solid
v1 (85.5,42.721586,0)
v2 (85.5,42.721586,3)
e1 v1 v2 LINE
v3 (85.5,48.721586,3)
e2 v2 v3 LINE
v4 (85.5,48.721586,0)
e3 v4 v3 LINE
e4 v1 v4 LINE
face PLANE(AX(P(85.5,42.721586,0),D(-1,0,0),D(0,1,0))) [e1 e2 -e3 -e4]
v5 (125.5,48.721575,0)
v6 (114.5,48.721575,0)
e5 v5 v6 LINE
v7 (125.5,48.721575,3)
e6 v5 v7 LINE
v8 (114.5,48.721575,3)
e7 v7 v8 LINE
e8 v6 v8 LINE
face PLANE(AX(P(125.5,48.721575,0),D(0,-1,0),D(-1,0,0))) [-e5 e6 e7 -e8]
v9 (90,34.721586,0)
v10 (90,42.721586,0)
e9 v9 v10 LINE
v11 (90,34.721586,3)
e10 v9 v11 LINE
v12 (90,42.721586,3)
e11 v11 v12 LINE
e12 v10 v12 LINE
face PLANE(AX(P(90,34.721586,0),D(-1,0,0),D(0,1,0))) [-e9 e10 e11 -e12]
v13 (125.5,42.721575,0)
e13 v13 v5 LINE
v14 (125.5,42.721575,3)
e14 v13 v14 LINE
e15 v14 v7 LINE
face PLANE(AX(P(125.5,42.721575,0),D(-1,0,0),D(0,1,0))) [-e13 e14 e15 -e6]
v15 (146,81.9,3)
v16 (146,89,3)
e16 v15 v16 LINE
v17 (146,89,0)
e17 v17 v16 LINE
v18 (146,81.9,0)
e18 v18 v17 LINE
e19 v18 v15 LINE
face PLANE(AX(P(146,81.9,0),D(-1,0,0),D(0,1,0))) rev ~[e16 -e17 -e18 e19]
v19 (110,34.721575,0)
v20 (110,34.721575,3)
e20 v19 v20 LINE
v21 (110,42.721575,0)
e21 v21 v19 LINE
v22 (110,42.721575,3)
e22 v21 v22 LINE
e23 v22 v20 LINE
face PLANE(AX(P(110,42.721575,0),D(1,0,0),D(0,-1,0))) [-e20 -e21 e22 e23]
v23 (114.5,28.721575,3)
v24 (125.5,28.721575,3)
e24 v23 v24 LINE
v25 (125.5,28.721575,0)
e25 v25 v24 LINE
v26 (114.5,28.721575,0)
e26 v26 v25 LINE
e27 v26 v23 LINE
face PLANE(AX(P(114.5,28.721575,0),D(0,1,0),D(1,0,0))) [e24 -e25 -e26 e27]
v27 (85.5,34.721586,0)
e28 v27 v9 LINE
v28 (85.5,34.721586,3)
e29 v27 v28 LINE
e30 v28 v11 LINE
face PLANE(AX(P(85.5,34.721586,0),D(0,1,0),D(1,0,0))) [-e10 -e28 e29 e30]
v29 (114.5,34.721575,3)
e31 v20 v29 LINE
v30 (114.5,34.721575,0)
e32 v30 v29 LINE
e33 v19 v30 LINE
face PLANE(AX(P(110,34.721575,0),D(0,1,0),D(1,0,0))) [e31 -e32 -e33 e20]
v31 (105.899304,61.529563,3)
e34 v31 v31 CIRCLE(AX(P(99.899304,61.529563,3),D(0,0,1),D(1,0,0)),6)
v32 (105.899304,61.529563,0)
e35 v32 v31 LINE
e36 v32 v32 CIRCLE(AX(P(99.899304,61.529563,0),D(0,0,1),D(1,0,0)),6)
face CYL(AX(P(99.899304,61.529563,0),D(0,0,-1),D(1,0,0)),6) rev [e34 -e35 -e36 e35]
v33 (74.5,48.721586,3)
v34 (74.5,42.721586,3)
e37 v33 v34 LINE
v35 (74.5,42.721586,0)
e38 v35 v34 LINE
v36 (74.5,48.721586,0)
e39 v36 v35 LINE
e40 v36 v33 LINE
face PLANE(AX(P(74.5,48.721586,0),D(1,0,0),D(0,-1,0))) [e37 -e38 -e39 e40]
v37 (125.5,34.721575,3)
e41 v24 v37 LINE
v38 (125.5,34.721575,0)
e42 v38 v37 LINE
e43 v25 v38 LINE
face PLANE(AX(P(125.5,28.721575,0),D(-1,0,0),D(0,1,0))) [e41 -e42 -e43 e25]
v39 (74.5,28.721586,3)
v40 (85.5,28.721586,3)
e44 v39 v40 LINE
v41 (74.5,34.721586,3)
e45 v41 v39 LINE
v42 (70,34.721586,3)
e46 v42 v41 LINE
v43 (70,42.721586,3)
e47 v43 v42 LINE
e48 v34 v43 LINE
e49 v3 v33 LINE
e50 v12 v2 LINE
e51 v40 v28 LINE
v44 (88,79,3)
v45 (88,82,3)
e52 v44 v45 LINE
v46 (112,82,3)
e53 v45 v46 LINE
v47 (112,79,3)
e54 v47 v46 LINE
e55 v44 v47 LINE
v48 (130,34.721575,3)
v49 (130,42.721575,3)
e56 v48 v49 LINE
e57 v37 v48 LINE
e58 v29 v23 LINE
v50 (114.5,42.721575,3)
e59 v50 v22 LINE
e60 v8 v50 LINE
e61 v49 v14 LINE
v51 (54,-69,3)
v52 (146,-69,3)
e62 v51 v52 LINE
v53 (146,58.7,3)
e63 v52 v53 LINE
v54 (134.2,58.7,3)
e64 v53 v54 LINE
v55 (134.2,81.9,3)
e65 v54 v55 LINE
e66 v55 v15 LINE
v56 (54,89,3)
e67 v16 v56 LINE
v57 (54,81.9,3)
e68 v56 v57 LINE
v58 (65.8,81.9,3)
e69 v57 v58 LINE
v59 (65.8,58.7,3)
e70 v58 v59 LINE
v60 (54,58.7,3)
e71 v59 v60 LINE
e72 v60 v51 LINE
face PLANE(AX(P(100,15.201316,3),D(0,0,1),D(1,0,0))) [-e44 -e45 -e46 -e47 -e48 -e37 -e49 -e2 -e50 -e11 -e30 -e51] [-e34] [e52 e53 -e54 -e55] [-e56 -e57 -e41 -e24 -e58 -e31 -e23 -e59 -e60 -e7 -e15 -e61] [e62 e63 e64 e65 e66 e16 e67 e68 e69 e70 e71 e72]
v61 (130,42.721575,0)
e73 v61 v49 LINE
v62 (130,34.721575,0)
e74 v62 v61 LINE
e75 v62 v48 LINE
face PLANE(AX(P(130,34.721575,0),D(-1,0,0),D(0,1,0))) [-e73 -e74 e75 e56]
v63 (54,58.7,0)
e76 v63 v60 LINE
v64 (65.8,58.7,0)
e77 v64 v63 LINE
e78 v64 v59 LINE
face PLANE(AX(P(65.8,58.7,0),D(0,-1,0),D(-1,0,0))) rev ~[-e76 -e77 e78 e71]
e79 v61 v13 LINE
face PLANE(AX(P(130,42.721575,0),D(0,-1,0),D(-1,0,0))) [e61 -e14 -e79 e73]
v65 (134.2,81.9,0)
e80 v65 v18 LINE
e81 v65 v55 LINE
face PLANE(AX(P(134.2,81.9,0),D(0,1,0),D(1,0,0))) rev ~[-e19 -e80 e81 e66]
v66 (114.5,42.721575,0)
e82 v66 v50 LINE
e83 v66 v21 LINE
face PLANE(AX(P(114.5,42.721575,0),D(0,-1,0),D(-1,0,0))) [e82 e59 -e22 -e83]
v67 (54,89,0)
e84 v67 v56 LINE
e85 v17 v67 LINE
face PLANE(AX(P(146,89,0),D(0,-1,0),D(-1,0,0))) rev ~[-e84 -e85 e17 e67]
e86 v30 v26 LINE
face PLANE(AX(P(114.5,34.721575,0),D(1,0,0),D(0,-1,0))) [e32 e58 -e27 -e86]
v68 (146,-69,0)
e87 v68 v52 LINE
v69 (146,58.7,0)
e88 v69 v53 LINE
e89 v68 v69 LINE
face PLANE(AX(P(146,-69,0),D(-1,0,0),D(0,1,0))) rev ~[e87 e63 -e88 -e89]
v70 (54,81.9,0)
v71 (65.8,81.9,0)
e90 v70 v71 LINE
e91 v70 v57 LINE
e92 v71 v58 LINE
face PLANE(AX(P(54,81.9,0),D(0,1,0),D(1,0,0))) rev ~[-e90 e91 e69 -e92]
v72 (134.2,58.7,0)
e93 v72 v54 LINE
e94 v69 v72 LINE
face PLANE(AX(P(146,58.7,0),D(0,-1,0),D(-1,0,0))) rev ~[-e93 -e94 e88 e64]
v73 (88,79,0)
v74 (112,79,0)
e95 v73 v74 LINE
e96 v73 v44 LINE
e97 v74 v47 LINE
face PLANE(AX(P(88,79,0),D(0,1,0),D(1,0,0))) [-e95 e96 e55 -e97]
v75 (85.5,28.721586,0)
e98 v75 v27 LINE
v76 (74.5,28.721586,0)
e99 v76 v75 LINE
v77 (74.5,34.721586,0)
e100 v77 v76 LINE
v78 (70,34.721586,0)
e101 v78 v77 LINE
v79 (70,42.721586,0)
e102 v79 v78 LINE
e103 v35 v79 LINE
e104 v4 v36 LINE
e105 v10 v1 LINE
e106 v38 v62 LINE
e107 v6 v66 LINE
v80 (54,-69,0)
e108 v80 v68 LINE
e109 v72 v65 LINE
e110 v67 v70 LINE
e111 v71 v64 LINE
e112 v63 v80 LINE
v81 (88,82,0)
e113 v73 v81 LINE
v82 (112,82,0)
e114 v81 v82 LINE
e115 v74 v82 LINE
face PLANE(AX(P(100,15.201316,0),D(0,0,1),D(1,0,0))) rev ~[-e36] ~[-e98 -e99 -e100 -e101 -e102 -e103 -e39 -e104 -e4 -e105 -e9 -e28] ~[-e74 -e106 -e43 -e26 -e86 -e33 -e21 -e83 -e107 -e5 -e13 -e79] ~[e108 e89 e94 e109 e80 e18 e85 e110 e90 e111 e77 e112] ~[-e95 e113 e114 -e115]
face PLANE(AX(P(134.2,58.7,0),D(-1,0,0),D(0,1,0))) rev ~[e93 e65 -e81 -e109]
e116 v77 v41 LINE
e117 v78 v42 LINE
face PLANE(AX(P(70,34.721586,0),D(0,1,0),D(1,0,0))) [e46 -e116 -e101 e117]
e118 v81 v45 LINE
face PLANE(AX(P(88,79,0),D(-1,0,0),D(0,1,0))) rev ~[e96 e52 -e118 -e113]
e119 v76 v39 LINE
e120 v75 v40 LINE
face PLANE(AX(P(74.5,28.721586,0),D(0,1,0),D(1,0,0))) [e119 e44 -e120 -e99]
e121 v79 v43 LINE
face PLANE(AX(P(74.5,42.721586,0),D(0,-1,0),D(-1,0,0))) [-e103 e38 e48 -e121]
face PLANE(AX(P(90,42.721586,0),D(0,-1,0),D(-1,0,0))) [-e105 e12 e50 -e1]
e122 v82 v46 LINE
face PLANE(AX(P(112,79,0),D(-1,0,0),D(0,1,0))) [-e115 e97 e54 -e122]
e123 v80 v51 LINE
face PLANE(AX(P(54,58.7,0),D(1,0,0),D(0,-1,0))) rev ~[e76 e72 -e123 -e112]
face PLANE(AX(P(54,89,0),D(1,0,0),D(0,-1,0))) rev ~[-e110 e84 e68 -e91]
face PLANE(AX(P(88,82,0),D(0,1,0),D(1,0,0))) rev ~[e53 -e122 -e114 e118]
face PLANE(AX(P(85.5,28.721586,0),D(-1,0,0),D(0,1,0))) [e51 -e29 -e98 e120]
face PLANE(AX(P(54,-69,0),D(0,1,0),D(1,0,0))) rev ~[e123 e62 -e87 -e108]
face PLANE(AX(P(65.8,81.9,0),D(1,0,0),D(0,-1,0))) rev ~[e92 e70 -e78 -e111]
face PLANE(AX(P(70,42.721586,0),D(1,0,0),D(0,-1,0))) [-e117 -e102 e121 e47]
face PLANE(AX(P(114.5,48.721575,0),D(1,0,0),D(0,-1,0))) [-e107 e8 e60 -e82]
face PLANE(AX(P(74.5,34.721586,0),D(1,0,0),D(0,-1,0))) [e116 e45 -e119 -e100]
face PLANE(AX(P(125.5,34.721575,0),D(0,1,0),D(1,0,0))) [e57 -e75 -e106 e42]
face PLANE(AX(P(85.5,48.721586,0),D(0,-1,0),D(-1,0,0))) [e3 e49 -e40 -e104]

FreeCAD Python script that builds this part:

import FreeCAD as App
import Part
import Sketcher


def add_polygon(sketch, points):
    """Adds a closed chain of lines whose ends are joined by coincident constraints."""
    first, n = sketch.GeometryCount, len(points)
    for a, b in zip(points, points[1:] + points[:1]):
        sketch.addGeometry(Part.LineSegment(App.Vector(*a, 0), App.Vector(*b, 0)), False)
    for i in range(n):
        sketch.addConstraint(Sketcher.Constraint("Coincident", first + i, 2, first + (i + 1) % n, 1))

doc = App.newDocument("Part")
body = doc.addObject("PartDesign::Body", "Body")

# Sketch on XY plane
sketch1 = body.newObject("Sketcher::SketchObject", "Sketch")
sketch1.AttachmentSupport = (doc.getObject("XY_Plane"), [""])
sketch1.MapMode = "FlatFace"
add_polygon(sketch1, [(54, 89), (54, 81.9), (65.8, 81.9), (65.8, 58.7), (54, 58.7), (54, -69), (146, -69), (146, 58.7), (134.2, 58.7), (134.2, 81.9), (146, 81.9), (146, 89)])  # lines 0-11
add_polygon(sketch1, [(85.5, 34.7), (85.5, 28.7), (74.5, 28.7), (74.5, 34.7), (70, 34.7), (70, 42.7), (74.5, 42.7), (74.5, 48.7), (85.5, 48.7), (85.5, 42.7), (90, 42.7), (90, 34.7)])  # lines 12-23
add_polygon(sketch1, [(125.5, 34.7), (125.5, 28.7), (114.5, 28.7), (114.5, 34.7), (110, 34.7), (110, 42.7), (114.5, 42.7), (114.5, 48.7), (125.5, 48.7), (125.5, 42.7), (130, 42.7), (130, 34.7)])  # lines 24-35
sketch1.addGeometry(Part.Circle(App.Vector(99.9, 61.5, 0), App.Vector(0, 0, 1), 6), False)  # 36
add_polygon(sketch1, [(112, 79), (88, 79), (88, 82), (112, 82)])  # lines 37-40
sketch1.addConstraint([
    Sketcher.Constraint("Vertical", 0),
    Sketcher.Constraint("Horizontal", 1),
    Sketcher.Constraint("Vertical", 2),
    Sketcher.Constraint("Horizontal", 3),
    Sketcher.Constraint("Vertical", 4),
    Sketcher.Constraint("Horizontal", 5),
    Sketcher.Constraint("Vertical", 6),
    Sketcher.Constraint("Horizontal", 7),
    Sketcher.Constraint("Vertical", 8),
    Sketcher.Constraint("Horizontal", 9),
    Sketcher.Constraint("Vertical", 10),
    Sketcher.Constraint("Horizontal", 11),
    Sketcher.Constraint("Vertical", 12),
    Sketcher.Constraint("Horizontal", 13),
    Sketcher.Constraint("Vertical", 14),
    Sketcher.Constraint("Horizontal", 15),
    Sketcher.Constraint("Vertical", 16),
    Sketcher.Constraint("Horizontal", 17),
    Sketcher.Constraint("Vertical", 18),
    Sketcher.Constraint("Horizontal", 19),
    Sketcher.Constraint("Vertical", 20),
    Sketcher.Constraint("Horizontal", 21),
    Sketcher.Constraint("Vertical", 22),
    Sketcher.Constraint("Horizontal", 23),
    Sketcher.Constraint("Vertical", 24),
    Sketcher.Constraint("Horizontal", 25),
    Sketcher.Constraint("Vertical", 26),
    Sketcher.Constraint("Horizontal", 27),
    Sketcher.Constraint("Vertical", 28),
    Sketcher.Constraint("Horizontal", 29),
    Sketcher.Constraint("Vertical", 30),
    Sketcher.Constraint("Horizontal", 31),
    Sketcher.Constraint("Vertical", 32),
    Sketcher.Constraint("Horizontal", 33),
    Sketcher.Constraint("Vertical", 34),
    Sketcher.Constraint("Horizontal", 35),
    Sketcher.Constraint("Horizontal", 37),
    Sketcher.Constraint("Vertical", 38),
    Sketcher.Constraint("Horizontal", 39),
    Sketcher.Constraint("Vertical", 40),
    Sketcher.Constraint("Horizontal", 3, 2, 6, 2),
    Sketcher.Constraint("Horizontal", 1, 2, 8, 2),
    Sketcher.Constraint("Horizontal", 17, 2, 20, 2),
    Sketcher.Constraint("Horizontal", 15, 2, 22, 2),
    Sketcher.Constraint("Horizontal", 29, 2, 32, 2),
    Sketcher.Constraint("Horizontal", 27, 2, 34, 2),
    Sketcher.Constraint("Vertical", 0, 2, 3, 2),
    Sketcher.Constraint("Vertical", 6, 2, 9, 2),
    Sketcher.Constraint("Vertical", 14, 2, 17, 2),
    Sketcher.Constraint("Vertical", 12, 2, 19, 2),
    Sketcher.Constraint("Vertical", 26, 2, 29, 2),
    Sketcher.Constraint("Vertical", 24, 2, 31, 2),
    Sketcher.Constraint("Equal", 3, 7),
    Sketcher.Constraint("Equal", 17, 21),
    Sketcher.Constraint("Equal", 19, 25),
    Sketcher.Constraint("Equal", 23, 27),
    Sketcher.Constraint("Equal", 29, 33),
    Sketcher.Constraint("Equal", 14, 18),
    Sketcher.Constraint("Equal", 20, 24),
    Sketcher.Constraint("Equal", 22, 28),
    Sketcher.Constraint("Equal", 26, 30),
    Sketcher.Constraint("Diameter", 36, 12.0),
    Sketcher.Constraint("DistanceX", 5, 1, 5, 2, 92.0),
    Sketcher.Constraint("DistanceX", 13, 2, 13, 1, 11.0),
    Sketcher.Constraint("DistanceX", 37, 2, 37, 1, 24.0),
    Sketcher.Constraint("DistanceY", 12, 2, 12, 1, 6.0),
    Sketcher.Constraint("DistanceY", 16, 1, 16, 2, 8.0),
    Sketcher.Constraint("DistanceY", 38, 1, 38, 2, 3.0),
    Sketcher.Constraint("DistanceX", 1, 1, 1, 2, 11.8),
    Sketcher.Constraint("DistanceX", 15, 2, 15, 1, 4.5),
    Sketcher.Constraint("DistanceY", 0, 2, 0, 1, 7.1),
    Sketcher.Constraint("DistanceY", 2, 2, 2, 1, 23.2),
    Sketcher.Constraint("DistanceY", 4, 2, 4, 1, 127.7),
    Sketcher.Constraint("DistanceX", -1, 1, 0, 2, 54.0),
    Sketcher.Constraint("DistanceY", 4, 2, -1, 1, 69.0),
    Sketcher.Constraint("DistanceX", -1, 1, 15, 2, 70.0),
    Sketcher.Constraint("DistanceX", -1, 1, 27, 2, 110.0),
    Sketcher.Constraint("DistanceX", -1, 1, 37, 2, 88.0),
    Sketcher.Constraint("DistanceY", -1, 1, 37, 2, 79.0),
    Sketcher.Constraint("DistanceY", 24, 2, 22, 2, 6.000011),
    Sketcher.Constraint("DistanceX", -1, 1, 36, 3, 99.899304),
    Sketcher.Constraint("DistanceY", -1, 1, 36, 3, 61.529563),
    Sketcher.Constraint("DistanceY", -1, 1, 12, 2, 28.721586),
])
pad1 = body.newObject("PartDesign::Pad", "Pad")
pad1.Profile = sketch1
pad1.Length = 3

doc.recompute()
